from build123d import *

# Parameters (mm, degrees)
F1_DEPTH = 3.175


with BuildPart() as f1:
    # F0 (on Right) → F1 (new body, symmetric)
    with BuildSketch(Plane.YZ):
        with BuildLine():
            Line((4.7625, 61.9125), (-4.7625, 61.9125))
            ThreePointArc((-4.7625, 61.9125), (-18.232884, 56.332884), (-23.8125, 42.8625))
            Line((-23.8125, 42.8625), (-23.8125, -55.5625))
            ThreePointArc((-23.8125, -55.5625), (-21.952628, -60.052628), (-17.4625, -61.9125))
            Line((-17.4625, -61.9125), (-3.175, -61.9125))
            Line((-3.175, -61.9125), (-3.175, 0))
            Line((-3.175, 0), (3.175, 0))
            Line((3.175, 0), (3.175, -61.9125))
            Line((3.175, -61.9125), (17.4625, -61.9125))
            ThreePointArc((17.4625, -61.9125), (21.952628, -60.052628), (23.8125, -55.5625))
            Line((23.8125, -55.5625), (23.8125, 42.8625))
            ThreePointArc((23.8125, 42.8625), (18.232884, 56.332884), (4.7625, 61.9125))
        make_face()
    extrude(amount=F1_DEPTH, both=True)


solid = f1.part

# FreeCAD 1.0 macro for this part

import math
import FreeCAD as App
import Part
import Sketcher
from FreeCAD import Vector
Q = App.Units.Quantity

doc = App.newDocument("Part")
body = doc.addObject("PartDesign::Body", "Body")

# Sketch on YZ plane
sketch1 = body.newObject("Sketcher::SketchObject", "Sketch")
sketch1.AttachmentSupport = (doc.getObject("YZ_Plane"), [""])
sketch1.MapMode = "FlatFace"
sketch1.addGeometry(Part.LineSegment(Vector(5, 62, 0), Vector(-5, 62, 0)), False)
sketch1.addGeometry(Part.ArcOfCircle(Part.Circle(Vector(-5, 43, 0), Vector(0, 0, 1), 19), math.radians(90), math.radians(180)), False)
sketch1.addGeometry(Part.LineSegment(Vector(-24, 43, 0), Vector(-24, -56, 0)), False)
sketch1.addGeometry(Part.ArcOfCircle(Part.Circle(Vector(-17, -56, 0), Vector(0, 0, 1), 6), math.radians(-180), math.radians(-90)), False)
sketch1.addGeometry(Part.LineSegment(Vector(-17, -62, 0), Vector(-3, -62, 0)), False)
sketch1.addGeometry(Part.LineSegment(Vector(-3, -62, 0), Vector(-3, 0, 0)), False)
sketch1.addGeometry(Part.LineSegment(Vector(-3, 0, 0), Vector(3, 0, 0)), False)
sketch1.addGeometry(Part.LineSegment(Vector(3, 0, 0), Vector(3, -62, 0)), False)
sketch1.addGeometry(Part.LineSegment(Vector(3, -62, 0), Vector(17, -62, 0)), False)
sketch1.addGeometry(Part.ArcOfCircle(Part.Circle(Vector(17, -56, 0), Vector(0, 0, 1), 6), math.radians(-90), math.radians(0)), False)
sketch1.addGeometry(Part.LineSegment(Vector(24, -56, 0), Vector(24, 43, 0)), False)
sketch1.addGeometry(Part.ArcOfCircle(Part.Circle(Vector(5, 43, 0), Vector(0, 0, 1), 19), math.radians(0), math.radians(90)), False)
sketch1.addConstraint(Sketcher.Constraint("Tangent", 0, 2, 1, 1))
sketch1.addConstraint(Sketcher.Constraint("Tangent", 1, 2, 2, 1))
sketch1.addConstraint(Sketcher.Constraint("Tangent", 2, 2, 3, 1))
sketch1.addConstraint(Sketcher.Constraint("Tangent", 3, 2, 4, 1))
sketch1.addConstraint(Sketcher.Constraint("Coincident", 4, 2, 5, 1))
sketch1.addConstraint(Sketcher.Constraint("Coincident", 5, 2, 6, 1))
sketch1.addConstraint(Sketcher.Constraint("Coincident", 6, 2, 7, 1))
sketch1.addConstraint(Sketcher.Constraint("Coincident", 7, 2, 8, 1))
sketch1.addConstraint(Sketcher.Constraint("Tangent", 8, 2, 9, 1))
sketch1.addConstraint(Sketcher.Constraint("Tangent", 9, 2, 10, 1))
sketch1.addConstraint(Sketcher.Constraint("Tangent", 10, 2, 11, 1))
sketch1.addConstraint(Sketcher.Constraint("Tangent", 11, 2, 0, 1))
sketch1.addConstraint(Sketcher.Constraint("Horizontal", 0))
sketch1.addConstraint(Sketcher.Constraint("Vertical", 2))
sketch1.addConstraint(Sketcher.Constraint("Horizontal", 4))
sketch1.addConstraint(Sketcher.Constraint("Vertical", 5))
sketch1.addConstraint(Sketcher.Constraint("Horizontal", 6))
sketch1.addConstraint(Sketcher.Constraint("Vertical", 7))
sketch1.addConstraint(Sketcher.Constraint("Horizontal", 8))
sketch1.addConstraint(Sketcher.Constraint("Vertical", 10))
sketch1.addConstraint(Sketcher.Constraint("Equal", 3, 9))
sketch1.addConstraint(Sketcher.Constraint("Equal", 1, 11))
sketch1.addConstraint(Sketcher.Constraint("Symmetric", 5, 2, 6, 2, -1, 1))
sketch1.addConstraint(Sketcher.Constraint("Symmetric", 3, 3, 9, 3, -2))
sketch1.addConstraint(Sketcher.Constraint("Radius", 1, Q("0.75 in")))
sketch1.addConstraint(Sketcher.Constraint("Radius", 3, Q("0.25 in")))
sketch1.addConstraint(Sketcher.Constraint("DistanceX", 6, 1, 6, 2, Q("0.25 in")))
sketch1.addConstraint(Sketcher.Constraint("DistanceX", 0, 2, 0, 1, Q("0.375 in")))
sketch1.addConstraint(Sketcher.Constraint("DistanceY", 2, 2, 2, 1, Q("3.875 in")))
sketch1.addConstraint(Sketcher.Constraint("DistanceY", 5, 1, 5, 2, Q("2.4375 in")))
pad1 = body.newObject("PartDesign::Pad", "Pad")
pad1.Profile = sketch1
pad1.Length = Q("0.25 in")
pad1.Midplane = True

doc.recompute()
